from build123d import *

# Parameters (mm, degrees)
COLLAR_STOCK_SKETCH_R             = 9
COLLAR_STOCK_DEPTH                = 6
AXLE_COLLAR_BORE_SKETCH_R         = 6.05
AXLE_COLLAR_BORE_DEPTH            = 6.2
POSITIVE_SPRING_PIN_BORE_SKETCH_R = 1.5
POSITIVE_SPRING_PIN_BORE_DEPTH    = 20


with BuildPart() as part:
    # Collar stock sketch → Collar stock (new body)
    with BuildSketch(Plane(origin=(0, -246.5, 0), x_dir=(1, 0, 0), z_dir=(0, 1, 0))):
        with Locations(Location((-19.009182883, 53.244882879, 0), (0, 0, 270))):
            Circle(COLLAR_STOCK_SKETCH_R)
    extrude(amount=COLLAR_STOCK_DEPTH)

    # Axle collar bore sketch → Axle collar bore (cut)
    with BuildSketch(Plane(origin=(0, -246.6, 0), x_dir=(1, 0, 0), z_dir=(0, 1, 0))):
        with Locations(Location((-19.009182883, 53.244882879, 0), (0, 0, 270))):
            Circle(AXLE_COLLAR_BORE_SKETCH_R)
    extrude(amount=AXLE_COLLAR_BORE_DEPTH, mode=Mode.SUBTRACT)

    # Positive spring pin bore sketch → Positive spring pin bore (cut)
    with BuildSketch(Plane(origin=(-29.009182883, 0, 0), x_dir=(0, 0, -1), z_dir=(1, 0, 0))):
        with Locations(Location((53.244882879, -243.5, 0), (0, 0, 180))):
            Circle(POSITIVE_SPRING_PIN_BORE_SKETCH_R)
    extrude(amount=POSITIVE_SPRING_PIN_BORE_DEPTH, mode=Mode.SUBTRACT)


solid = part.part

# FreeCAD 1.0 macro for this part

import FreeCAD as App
import Part
import Sketcher

doc = App.newDocument("Part")
params = doc.addObject("Spreadsheet::Sheet", "Params")
for row, (alias, value) in enumerate([
    ("sketch1_diameter", "18 mm"),
    ("pad1_length", "6 mm"),
    ("sketch2_diameter", "12.1 mm"),
    ("pocket1_length", "6.2 mm"),
    ("sketch3_diameter", "3 mm"),
    ("pocket2_length", "20 mm"),
], start=1):
    params.set(f"A{row}", alias)
    params.set(f"B{row}", "=" + value)
    params.setAlias(f"B{row}", alias)

body = doc.addObject("PartDesign::Body", "Body")

# Sketch on XZ plane
sketch1 = body.newObject("Sketcher::SketchObject", "Sketch")
sketch1.AttachmentSupport = (doc.getObject("XZ_Plane"), [""])
sketch1.MapMode = "FlatFace"
sketch1.AttachmentOffset = App.Placement(App.Vector(0, 0, 246.5), App.Rotation())
sketch1.addGeometry(Part.Circle(App.Vector(-19, -53, 0), App.Vector(0, 0, 1), 9), False)
sketch1.addConstraint(Sketcher.Constraint("Diameter", 0, 18.0))
sketch1.addConstraint(Sketcher.Constraint("DistanceX", 0, 3, -1, 1, 19.009183))
sketch1.addConstraint(Sketcher.Constraint("DistanceY", 0, 3, -1, 1, 53.244883))
sketch1.setExpression("Constraints[0]", "Params.sketch1_diameter")
pad1 = body.newObject("PartDesign::Pad", "Pad")
pad1.Profile = sketch1
pad1.setExpression("Length", "Params.pad1_length")
pad1.Reversed = True

# Sketch on XZ plane
sketch2 = body.newObject("Sketcher::SketchObject", "Sketch001")
sketch2.AttachmentSupport = (doc.getObject("XZ_Plane"), [""])
sketch2.MapMode = "FlatFace"
sketch2.AttachmentOffset = App.Placement(App.Vector(0, 0, 246.6), App.Rotation())
sketch2.addGeometry(Part.Circle(App.Vector(-19, -53, 0), App.Vector(0, 0, 1), 6), False)
sketch2.addConstraint(Sketcher.Constraint("Diameter", 0, 12.1))
sketch2.addConstraint(Sketcher.Constraint("DistanceX", 0, 3, -1, 1, 19.009183))
sketch2.addConstraint(Sketcher.Constraint("DistanceY", 0, 3, -1, 1, 53.244883))
sketch2.setExpression("Constraints[0]", "Params.sketch2_diameter")
pocket1 = body.newObject("PartDesign::Pocket", "Pocket")
pocket1.Profile = sketch2
pocket1.setExpression("Length", "Params.pocket1_length")

# Sketch on YZ plane
sketch3 = body.newObject("Sketcher::SketchObject", "Sketch002")
sketch3.AttachmentSupport = (doc.getObject("YZ_Plane"), [""])
sketch3.MapMode = "FlatFace"
sketch3.AttachmentOffset = App.Placement(App.Vector(0, 0, -29.009183), App.Rotation())
sketch3.addGeometry(Part.Circle(App.Vector(-243.5, -53.2, 0), App.Vector(0, 0, 1), 1.5), False)
sketch3.addConstraint(Sketcher.Constraint("Diameter", 0, 3.0))
sketch3.addConstraint(Sketcher.Constraint("DistanceX", 0, 3, -1, 1, 243.5))
sketch3.addConstraint(Sketcher.Constraint("DistanceY", 0, 3, -1, 1, 53.244883))
sketch3.setExpression("Constraints[0]", "Params.sketch3_diameter")
pocket2 = body.newObject("PartDesign::Pocket", "Pocket001")
pocket2.Profile = sketch3
pocket2.setExpression("Length", "Params.pocket2_length")
pocket2.Reversed = True

doc.recompute()
